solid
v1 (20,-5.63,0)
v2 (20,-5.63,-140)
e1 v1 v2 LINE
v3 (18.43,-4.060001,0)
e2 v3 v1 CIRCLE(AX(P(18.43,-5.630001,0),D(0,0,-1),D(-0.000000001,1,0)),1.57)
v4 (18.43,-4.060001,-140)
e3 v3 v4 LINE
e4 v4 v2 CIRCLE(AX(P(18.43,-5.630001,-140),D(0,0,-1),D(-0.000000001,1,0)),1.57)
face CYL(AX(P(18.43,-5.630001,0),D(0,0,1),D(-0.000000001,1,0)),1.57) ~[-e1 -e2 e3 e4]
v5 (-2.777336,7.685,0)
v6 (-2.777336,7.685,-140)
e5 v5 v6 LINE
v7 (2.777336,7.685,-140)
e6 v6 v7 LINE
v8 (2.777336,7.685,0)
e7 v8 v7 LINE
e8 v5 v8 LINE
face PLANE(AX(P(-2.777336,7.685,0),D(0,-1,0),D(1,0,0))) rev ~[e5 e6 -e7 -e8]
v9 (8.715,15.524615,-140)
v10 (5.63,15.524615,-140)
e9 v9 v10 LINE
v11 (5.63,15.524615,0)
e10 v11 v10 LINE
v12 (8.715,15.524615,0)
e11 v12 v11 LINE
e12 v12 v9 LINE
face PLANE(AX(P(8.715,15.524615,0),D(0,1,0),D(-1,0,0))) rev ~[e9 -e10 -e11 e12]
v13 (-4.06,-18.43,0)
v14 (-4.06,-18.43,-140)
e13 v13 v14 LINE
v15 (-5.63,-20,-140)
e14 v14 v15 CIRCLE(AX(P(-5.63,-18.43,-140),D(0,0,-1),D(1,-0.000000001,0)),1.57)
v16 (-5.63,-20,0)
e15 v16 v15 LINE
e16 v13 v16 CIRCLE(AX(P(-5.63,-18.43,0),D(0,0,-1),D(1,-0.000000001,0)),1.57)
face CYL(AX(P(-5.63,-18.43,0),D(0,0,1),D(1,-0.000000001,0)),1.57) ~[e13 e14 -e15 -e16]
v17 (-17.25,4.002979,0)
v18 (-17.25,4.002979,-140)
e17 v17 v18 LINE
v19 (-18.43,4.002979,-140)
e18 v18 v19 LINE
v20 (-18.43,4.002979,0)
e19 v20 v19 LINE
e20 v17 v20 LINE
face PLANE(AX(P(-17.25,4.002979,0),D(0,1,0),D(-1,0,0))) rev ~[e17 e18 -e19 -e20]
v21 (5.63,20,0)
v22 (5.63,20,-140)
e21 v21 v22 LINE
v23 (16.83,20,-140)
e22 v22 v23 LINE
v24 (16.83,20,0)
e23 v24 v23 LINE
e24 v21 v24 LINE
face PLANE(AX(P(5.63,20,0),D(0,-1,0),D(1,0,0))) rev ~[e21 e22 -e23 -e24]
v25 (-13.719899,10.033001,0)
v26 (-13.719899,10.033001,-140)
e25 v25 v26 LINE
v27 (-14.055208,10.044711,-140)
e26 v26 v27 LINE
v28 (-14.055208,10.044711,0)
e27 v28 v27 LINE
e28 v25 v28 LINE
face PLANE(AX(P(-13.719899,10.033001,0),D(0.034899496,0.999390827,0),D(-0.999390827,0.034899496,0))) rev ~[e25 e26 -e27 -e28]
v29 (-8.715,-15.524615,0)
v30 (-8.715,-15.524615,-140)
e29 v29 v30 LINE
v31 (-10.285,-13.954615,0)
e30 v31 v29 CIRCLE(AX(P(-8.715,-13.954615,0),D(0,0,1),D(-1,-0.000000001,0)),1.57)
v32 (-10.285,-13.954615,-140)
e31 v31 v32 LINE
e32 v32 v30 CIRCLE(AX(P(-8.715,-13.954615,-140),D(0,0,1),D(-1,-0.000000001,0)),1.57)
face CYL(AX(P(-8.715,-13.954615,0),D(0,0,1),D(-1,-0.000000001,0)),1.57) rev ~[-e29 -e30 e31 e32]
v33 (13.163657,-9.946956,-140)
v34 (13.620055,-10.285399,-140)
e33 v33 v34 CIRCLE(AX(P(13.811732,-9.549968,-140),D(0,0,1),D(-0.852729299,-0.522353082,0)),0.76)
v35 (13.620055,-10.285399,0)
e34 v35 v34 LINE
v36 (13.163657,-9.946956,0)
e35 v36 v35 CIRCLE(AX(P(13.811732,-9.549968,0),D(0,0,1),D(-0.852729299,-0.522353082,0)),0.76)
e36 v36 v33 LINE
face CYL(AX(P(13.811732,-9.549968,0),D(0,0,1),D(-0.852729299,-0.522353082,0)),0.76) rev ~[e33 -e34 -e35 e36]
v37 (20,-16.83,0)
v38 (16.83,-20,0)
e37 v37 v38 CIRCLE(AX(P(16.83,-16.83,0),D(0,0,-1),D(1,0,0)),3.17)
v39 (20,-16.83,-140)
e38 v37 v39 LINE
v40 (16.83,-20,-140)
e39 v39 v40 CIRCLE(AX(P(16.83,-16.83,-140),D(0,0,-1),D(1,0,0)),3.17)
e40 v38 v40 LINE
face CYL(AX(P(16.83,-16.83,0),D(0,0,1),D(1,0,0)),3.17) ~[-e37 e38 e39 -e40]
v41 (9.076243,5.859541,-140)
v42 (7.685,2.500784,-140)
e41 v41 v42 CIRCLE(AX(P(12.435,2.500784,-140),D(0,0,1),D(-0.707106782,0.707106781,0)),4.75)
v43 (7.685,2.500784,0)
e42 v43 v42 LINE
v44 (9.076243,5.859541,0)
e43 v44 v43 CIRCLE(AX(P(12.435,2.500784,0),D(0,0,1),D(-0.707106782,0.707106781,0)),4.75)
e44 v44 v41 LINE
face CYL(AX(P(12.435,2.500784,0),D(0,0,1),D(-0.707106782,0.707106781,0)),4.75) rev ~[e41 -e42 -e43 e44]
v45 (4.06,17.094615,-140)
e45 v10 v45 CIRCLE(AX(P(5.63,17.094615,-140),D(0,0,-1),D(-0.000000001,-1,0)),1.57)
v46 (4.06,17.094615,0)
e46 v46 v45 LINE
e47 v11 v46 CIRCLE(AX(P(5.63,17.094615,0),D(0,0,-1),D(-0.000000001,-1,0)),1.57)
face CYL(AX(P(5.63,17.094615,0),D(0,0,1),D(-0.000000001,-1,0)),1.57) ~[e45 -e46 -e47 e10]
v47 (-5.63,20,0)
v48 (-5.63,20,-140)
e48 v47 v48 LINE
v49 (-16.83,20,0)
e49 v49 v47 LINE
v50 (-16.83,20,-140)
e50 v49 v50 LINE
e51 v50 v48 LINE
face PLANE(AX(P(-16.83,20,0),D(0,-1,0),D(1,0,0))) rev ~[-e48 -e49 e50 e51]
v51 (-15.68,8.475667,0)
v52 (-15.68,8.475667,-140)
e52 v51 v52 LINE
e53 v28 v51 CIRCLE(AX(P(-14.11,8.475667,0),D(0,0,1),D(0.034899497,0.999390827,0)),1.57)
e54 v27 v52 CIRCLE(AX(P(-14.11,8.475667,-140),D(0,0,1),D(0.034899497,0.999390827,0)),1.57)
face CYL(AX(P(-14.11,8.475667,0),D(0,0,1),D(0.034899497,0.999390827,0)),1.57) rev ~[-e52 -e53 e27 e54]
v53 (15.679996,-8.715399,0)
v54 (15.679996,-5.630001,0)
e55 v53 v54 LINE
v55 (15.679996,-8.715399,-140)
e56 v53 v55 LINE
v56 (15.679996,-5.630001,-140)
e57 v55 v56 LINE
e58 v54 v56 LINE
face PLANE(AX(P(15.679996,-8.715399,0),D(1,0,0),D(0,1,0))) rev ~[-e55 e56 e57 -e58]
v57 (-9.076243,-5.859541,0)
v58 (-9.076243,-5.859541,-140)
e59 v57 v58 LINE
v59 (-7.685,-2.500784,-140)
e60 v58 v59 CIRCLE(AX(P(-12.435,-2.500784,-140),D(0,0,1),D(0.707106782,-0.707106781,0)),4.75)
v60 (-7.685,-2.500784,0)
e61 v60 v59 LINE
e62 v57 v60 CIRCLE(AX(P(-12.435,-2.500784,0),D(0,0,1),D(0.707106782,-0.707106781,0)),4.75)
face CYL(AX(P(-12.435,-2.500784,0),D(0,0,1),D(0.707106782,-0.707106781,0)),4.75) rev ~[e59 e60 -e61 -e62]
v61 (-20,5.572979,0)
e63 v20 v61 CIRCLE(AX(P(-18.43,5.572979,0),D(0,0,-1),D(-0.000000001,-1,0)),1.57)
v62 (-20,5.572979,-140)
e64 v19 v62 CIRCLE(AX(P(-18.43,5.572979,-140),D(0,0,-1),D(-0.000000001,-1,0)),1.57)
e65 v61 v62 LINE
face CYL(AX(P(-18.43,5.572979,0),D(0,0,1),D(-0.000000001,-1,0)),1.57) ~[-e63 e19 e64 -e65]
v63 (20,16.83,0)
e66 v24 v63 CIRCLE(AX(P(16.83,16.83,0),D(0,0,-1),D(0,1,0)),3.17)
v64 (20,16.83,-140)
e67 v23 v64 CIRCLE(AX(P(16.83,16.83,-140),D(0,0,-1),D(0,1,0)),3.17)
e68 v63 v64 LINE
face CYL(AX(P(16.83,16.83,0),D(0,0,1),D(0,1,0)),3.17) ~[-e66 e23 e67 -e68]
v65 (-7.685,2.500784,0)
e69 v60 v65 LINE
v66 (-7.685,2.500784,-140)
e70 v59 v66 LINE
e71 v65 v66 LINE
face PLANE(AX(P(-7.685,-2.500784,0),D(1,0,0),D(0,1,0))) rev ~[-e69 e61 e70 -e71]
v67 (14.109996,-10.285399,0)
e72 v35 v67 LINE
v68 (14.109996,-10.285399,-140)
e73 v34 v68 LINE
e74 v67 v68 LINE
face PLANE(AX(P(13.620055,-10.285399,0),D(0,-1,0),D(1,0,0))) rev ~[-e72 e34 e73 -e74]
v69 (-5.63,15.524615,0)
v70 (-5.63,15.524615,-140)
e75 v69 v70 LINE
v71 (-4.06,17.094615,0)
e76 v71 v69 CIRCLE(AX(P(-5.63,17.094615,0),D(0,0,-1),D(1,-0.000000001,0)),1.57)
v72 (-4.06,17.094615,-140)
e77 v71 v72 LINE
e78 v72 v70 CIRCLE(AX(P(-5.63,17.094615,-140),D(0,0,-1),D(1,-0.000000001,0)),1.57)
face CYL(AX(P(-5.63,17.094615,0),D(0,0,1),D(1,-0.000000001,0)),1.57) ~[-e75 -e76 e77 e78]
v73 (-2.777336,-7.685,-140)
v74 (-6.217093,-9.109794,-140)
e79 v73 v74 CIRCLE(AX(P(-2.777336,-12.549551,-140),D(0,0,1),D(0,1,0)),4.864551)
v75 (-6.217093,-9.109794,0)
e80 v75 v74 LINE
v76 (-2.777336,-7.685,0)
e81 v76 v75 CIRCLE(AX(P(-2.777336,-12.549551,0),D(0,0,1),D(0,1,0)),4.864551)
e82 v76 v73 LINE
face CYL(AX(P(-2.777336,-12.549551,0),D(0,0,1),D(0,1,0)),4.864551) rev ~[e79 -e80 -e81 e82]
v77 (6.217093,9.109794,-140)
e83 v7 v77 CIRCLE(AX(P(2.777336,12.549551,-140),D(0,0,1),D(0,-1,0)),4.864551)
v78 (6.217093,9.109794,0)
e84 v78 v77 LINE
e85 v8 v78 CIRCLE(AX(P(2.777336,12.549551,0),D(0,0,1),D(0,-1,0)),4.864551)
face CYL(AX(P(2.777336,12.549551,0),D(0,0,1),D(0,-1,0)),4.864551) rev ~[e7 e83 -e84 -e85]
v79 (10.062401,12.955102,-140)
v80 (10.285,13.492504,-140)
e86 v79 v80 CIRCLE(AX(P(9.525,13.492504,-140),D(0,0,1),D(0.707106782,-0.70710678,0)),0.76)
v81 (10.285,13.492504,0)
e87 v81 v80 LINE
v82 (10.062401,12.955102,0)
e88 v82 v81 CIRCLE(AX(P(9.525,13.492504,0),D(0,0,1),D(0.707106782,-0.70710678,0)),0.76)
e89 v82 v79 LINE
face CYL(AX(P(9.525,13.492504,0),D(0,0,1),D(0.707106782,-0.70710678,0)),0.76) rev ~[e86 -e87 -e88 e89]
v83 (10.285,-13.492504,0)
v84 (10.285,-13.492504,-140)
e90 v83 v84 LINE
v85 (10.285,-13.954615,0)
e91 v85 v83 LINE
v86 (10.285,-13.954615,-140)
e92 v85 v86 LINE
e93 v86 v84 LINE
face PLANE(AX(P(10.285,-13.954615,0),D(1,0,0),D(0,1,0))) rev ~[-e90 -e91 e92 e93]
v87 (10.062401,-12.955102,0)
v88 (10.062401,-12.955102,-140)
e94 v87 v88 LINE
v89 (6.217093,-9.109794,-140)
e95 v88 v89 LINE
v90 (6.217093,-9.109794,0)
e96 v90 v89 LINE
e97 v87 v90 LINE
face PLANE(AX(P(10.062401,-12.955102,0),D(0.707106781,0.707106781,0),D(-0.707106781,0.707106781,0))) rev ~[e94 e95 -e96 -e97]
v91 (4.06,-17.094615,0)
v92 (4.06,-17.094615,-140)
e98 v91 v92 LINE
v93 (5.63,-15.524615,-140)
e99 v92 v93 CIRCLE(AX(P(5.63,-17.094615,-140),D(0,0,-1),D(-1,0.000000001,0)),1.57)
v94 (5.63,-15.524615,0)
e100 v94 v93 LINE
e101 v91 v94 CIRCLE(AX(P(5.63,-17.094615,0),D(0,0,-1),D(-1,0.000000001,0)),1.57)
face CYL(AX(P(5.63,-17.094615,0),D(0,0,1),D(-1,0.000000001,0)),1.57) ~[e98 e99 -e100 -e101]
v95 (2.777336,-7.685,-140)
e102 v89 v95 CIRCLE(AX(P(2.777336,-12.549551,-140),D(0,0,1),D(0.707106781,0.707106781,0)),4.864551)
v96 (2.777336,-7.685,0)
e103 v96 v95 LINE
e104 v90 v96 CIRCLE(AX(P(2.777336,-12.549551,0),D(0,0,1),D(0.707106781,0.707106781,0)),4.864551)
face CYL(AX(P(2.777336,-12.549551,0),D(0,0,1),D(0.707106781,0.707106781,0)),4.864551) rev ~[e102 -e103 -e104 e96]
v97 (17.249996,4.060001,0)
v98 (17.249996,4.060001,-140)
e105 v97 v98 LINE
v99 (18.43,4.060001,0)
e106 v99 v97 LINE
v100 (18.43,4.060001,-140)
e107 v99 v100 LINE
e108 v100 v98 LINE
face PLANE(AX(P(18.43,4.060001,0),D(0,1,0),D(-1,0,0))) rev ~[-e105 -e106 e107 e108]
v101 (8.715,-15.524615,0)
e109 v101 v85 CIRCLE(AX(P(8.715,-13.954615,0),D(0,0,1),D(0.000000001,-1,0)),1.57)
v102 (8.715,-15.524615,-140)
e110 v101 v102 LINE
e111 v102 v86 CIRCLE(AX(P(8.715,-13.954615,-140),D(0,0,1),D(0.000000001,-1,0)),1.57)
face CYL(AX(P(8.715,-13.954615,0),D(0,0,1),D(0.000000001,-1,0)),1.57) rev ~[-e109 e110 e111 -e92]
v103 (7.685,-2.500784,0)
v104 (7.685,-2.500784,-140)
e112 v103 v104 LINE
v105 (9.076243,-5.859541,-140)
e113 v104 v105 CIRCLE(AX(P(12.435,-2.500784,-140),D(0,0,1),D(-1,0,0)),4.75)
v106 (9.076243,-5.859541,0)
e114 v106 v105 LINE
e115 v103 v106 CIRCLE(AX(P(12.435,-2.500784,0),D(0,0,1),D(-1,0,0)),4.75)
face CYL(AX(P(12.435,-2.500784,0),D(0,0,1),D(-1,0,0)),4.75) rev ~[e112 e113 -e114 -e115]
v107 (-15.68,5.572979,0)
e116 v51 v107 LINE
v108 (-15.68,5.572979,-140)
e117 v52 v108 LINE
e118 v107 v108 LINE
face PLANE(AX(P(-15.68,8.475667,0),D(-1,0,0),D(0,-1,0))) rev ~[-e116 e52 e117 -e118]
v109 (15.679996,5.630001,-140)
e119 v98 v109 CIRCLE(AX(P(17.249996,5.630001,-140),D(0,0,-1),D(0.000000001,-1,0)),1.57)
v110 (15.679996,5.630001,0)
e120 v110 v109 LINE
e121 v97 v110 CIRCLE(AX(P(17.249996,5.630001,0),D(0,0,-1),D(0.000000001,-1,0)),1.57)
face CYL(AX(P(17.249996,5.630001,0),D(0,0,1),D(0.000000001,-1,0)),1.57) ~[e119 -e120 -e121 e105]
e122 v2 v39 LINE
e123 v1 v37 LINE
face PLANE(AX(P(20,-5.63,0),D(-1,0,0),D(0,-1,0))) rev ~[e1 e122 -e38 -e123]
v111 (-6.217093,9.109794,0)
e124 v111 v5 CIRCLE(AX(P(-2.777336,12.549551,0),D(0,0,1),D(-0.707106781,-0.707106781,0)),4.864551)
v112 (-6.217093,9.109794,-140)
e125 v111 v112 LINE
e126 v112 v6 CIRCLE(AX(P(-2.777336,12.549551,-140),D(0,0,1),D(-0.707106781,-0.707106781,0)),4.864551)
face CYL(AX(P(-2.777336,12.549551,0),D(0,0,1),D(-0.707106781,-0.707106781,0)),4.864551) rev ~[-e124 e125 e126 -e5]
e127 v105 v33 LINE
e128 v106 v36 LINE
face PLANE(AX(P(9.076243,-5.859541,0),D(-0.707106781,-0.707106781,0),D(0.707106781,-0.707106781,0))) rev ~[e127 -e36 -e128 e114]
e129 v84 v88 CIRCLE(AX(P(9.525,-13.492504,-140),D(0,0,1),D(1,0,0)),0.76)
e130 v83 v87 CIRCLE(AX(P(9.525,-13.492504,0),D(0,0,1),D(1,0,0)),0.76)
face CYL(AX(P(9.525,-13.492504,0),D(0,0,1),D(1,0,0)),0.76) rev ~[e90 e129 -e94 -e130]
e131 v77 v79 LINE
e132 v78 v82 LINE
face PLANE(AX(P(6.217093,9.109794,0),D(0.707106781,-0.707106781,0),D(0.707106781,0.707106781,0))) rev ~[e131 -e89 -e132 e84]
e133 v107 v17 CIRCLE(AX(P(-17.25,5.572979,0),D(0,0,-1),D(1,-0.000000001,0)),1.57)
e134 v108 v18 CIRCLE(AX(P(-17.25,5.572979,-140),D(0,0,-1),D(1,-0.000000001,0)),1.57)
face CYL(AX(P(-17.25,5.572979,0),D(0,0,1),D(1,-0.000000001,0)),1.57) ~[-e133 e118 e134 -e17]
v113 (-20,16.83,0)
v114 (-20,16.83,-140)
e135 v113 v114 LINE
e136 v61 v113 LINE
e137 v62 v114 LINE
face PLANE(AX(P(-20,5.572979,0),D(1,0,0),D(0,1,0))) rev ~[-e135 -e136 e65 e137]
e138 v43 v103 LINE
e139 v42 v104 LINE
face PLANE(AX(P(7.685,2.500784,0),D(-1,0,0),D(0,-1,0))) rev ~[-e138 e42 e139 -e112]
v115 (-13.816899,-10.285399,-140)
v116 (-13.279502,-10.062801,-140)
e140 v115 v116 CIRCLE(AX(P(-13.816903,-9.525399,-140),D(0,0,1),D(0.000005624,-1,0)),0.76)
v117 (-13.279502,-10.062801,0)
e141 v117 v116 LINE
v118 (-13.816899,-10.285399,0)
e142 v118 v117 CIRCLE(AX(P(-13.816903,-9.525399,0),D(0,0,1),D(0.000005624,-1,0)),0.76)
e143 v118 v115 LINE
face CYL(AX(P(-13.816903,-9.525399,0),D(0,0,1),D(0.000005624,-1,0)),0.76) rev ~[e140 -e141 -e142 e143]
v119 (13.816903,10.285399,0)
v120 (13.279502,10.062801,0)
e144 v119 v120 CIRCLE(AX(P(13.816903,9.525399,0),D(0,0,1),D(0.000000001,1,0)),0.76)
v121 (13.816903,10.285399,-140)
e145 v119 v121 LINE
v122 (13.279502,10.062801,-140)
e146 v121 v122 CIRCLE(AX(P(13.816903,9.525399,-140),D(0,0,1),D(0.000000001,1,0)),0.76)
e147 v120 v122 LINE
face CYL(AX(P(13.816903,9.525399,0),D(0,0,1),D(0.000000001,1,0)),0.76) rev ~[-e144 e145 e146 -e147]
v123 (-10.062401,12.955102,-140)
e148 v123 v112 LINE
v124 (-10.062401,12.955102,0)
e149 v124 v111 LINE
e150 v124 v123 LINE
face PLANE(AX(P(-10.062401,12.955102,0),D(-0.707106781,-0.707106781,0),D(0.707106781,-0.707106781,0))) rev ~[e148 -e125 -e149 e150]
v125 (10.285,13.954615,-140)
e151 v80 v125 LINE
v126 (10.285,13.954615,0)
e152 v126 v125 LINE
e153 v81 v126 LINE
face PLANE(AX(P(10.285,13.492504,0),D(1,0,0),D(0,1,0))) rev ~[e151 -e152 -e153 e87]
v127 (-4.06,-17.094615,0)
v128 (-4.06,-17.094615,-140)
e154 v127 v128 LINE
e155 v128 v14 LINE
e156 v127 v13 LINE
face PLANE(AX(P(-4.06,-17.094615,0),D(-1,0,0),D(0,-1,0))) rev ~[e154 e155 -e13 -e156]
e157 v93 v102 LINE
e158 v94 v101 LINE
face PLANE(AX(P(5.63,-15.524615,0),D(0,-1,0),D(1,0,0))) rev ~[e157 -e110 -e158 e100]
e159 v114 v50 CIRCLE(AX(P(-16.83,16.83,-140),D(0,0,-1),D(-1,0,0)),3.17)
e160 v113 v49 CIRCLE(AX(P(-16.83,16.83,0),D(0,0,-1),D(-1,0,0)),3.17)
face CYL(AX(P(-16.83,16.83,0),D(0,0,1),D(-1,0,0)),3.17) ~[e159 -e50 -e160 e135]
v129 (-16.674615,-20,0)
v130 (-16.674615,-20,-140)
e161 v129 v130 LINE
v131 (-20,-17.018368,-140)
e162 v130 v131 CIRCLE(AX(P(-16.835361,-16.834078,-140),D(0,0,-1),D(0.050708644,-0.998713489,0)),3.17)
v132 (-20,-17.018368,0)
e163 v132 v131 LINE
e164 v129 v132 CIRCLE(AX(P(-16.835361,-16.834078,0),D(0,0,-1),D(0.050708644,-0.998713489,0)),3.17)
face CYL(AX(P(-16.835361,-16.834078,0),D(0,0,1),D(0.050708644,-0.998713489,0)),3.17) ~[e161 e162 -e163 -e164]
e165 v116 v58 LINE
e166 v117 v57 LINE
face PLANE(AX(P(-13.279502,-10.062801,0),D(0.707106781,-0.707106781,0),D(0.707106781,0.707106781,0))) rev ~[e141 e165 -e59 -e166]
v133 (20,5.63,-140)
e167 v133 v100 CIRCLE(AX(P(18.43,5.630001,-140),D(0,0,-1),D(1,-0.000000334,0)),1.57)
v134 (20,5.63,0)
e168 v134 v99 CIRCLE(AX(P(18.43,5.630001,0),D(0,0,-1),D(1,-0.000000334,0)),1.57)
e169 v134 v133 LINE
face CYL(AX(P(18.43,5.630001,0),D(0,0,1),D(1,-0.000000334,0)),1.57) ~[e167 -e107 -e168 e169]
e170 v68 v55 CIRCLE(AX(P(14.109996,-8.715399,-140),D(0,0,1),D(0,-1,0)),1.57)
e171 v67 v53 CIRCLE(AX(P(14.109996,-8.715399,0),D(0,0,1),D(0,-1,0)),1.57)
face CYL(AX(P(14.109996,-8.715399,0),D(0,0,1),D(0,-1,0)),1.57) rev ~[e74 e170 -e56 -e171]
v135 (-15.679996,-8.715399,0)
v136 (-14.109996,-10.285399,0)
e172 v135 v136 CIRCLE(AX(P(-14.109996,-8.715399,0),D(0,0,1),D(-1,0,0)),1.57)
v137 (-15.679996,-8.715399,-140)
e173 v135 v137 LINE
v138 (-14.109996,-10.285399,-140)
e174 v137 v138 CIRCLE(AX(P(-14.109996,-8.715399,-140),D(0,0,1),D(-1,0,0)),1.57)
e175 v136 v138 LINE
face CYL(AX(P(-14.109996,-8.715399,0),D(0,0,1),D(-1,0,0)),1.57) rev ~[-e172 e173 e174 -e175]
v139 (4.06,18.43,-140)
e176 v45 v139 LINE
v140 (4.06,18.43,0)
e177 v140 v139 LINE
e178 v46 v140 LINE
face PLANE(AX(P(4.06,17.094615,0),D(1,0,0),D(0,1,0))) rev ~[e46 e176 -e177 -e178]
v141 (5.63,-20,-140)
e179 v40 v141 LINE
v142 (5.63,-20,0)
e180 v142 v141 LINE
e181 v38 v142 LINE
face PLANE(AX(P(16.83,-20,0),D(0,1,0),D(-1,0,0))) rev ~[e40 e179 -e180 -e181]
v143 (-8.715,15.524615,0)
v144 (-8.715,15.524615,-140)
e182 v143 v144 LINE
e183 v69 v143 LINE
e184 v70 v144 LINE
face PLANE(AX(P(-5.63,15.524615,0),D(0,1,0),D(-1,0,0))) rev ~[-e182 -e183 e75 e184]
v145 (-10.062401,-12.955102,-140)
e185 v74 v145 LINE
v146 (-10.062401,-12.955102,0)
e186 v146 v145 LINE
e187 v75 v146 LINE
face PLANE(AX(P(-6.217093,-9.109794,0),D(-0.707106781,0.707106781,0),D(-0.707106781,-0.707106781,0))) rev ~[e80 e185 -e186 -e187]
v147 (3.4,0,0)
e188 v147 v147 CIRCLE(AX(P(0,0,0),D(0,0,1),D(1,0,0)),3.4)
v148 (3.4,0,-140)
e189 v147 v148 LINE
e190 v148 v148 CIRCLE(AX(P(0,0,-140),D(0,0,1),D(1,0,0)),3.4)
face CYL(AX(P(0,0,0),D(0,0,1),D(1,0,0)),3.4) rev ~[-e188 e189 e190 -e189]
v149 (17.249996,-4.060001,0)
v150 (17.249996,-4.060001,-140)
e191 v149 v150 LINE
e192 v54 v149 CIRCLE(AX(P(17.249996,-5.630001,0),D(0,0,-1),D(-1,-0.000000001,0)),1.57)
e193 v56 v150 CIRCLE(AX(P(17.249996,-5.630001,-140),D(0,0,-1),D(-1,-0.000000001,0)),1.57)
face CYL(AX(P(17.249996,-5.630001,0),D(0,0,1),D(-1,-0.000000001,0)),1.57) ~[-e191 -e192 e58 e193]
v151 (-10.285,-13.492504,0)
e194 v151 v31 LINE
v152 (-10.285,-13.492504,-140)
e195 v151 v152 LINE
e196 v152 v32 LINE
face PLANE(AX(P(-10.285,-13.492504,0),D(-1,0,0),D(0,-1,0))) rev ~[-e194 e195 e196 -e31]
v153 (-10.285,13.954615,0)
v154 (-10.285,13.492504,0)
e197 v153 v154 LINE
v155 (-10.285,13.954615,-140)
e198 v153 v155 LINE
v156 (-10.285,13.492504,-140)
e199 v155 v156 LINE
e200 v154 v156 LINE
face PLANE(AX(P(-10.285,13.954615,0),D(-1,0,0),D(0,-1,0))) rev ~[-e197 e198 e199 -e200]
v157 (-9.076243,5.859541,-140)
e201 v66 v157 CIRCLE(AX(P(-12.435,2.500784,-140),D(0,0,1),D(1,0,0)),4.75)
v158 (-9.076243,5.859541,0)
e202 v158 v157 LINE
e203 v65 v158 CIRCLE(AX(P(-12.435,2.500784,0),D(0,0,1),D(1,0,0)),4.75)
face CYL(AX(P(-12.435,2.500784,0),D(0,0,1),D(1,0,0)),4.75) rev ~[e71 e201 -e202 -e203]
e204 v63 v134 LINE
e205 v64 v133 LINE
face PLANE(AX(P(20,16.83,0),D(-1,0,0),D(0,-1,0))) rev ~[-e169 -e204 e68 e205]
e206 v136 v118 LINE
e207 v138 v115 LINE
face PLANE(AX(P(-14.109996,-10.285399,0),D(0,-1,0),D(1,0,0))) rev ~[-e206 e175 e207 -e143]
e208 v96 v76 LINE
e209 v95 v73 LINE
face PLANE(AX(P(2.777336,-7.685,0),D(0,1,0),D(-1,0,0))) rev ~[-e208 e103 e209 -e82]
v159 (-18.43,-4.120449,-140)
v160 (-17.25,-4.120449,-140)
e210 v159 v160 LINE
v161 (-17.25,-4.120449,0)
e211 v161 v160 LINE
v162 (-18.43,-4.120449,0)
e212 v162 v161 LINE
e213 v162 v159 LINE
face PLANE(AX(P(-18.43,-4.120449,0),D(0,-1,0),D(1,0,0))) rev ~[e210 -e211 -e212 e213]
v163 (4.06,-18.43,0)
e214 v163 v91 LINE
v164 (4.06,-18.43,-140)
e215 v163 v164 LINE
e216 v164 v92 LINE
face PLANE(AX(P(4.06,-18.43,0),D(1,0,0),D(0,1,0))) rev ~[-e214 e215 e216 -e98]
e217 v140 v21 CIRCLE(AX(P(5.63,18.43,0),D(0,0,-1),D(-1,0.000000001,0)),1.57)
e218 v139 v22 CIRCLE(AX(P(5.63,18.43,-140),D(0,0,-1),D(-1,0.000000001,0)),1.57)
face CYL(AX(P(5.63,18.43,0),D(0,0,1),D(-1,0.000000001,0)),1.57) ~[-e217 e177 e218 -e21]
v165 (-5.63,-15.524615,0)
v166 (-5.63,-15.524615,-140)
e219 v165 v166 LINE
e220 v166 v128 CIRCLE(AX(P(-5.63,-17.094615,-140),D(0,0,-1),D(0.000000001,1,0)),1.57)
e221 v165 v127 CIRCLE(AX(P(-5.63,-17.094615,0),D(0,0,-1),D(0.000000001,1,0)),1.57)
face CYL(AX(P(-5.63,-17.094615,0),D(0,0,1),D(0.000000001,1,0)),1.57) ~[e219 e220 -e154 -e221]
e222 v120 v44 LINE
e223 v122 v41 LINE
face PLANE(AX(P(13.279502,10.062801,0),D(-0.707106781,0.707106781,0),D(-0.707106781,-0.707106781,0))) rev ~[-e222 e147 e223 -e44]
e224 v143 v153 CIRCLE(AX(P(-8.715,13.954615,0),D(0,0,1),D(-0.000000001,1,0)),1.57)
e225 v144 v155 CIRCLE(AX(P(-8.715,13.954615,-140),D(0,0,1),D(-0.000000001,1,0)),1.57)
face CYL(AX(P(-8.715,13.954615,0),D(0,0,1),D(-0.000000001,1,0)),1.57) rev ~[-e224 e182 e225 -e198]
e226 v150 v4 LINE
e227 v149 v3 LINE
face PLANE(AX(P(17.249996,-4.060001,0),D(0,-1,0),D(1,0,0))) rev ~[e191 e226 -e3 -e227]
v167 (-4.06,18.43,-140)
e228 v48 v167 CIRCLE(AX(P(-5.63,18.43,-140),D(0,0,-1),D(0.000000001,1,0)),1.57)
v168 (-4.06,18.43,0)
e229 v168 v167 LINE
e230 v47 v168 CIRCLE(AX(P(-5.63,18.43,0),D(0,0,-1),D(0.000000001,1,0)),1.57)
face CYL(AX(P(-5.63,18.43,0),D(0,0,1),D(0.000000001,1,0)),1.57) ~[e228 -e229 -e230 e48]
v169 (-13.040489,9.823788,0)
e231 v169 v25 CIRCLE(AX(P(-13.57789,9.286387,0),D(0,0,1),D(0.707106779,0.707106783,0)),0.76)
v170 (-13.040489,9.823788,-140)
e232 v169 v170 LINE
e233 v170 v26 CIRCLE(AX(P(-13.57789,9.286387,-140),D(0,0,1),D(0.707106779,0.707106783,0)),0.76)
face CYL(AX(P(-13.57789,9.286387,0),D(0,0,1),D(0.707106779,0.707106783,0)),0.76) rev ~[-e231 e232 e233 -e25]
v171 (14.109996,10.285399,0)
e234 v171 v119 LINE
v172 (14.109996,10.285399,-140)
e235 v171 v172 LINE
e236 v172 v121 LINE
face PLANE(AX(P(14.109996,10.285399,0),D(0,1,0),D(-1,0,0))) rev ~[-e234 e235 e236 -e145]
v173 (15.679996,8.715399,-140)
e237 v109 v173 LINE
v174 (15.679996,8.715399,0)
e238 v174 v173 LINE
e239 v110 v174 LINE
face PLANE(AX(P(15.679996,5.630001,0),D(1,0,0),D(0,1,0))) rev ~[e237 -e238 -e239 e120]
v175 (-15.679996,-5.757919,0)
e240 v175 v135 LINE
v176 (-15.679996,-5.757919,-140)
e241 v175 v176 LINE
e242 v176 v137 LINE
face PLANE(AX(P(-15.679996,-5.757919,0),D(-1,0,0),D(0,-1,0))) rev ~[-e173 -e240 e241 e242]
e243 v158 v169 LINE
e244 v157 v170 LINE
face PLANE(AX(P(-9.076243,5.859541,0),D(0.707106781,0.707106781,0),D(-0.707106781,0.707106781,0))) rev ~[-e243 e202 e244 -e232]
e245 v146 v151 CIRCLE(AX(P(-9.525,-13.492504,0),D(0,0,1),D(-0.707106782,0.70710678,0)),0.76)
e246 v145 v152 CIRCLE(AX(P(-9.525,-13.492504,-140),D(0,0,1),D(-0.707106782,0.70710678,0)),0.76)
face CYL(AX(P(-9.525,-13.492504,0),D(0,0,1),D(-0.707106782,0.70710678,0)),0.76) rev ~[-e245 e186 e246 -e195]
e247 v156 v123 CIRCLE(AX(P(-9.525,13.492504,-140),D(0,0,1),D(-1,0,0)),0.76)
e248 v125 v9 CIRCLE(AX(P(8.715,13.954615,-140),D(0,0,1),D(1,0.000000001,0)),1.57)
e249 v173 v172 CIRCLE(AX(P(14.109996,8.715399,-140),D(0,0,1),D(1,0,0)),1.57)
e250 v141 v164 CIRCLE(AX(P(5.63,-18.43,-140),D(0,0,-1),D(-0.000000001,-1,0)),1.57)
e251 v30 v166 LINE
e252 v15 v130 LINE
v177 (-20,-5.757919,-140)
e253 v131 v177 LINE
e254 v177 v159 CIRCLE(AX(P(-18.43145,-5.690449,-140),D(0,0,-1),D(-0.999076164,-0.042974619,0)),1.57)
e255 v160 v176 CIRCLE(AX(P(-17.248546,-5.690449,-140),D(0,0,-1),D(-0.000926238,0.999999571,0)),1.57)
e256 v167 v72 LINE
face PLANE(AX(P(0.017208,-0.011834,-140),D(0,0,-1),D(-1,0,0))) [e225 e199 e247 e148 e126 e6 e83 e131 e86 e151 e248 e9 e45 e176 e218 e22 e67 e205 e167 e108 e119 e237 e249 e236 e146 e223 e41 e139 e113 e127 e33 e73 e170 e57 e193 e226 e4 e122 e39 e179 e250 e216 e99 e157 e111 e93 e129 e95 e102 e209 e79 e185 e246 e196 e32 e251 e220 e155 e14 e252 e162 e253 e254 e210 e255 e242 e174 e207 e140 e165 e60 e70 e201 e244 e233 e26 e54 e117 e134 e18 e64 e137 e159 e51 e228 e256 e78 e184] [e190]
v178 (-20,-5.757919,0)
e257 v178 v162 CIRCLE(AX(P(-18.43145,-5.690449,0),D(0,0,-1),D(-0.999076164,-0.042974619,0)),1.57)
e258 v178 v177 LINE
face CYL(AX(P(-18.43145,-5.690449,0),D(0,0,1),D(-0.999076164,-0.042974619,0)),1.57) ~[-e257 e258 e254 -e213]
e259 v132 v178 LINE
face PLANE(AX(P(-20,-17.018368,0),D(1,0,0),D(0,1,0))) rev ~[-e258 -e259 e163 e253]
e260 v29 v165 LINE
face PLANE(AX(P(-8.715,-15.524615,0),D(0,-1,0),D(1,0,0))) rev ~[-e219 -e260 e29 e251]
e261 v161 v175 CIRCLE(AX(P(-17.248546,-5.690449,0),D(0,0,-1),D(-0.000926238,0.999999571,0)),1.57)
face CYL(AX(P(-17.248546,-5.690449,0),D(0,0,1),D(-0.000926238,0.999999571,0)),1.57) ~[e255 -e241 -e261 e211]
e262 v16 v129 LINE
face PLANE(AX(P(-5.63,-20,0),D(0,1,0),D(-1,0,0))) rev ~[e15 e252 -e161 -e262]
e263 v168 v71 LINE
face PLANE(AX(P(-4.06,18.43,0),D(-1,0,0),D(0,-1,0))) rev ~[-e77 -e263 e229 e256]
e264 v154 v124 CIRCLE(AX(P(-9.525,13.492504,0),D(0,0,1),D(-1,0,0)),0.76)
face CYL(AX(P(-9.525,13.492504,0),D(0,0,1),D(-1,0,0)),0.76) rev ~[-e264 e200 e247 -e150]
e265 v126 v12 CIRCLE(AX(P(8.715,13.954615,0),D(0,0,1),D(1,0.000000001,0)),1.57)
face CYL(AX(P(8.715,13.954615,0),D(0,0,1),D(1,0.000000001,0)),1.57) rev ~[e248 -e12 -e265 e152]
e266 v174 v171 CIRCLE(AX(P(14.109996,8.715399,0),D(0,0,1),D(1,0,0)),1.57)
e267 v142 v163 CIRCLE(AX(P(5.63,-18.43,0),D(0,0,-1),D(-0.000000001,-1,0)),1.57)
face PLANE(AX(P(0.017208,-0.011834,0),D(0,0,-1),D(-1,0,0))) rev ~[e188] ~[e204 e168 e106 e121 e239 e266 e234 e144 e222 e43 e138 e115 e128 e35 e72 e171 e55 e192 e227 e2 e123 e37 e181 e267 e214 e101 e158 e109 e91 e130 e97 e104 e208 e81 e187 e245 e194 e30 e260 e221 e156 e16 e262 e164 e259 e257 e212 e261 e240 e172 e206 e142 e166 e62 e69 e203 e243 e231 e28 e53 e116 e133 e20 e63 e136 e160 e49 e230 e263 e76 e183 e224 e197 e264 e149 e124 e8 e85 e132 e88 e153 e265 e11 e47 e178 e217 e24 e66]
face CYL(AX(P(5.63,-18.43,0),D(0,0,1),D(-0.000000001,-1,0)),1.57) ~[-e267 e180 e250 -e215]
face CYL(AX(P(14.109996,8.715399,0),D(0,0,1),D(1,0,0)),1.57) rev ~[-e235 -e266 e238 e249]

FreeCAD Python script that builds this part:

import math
import FreeCAD as App
import Part
import Sketcher
Q = App.Units.Quantity

doc = App.newDocument("Part")
params = doc.addObject("Spreadsheet::Sheet", "Params")
for row, (alias, value) in enumerate([
    ("sketch1_diameter", "6.8 mm"),
    ("sketch1_radius", "1.57 mm"),
    ("sketch1_radius2", "0.76 mm"),
    ("sketch1_radius3", "3.17 mm"),
    ("sketch1_radius4", "4.75 mm"),
    ("pad1_length", "140 mm"),
], start=1):
    params.set(f"A{row}", alias)
    params.set(f"B{row}", "=" + value)
    params.setAlias(f"B{row}", alias)

body = doc.addObject("PartDesign::Body", "Body")

# Sketch on XY plane
sketch1 = body.newObject("Sketcher::SketchObject", "Sketch")
sketch1.AttachmentSupport = (doc.getObject("XY_Plane"), [""])
sketch1.MapMode = "FlatFace"
sketch1.addGeometry([
    Part.LineSegment(App.Vector(-5.63, -15.52, 0), App.Vector(-8.71, -15.52, 0)),  # 0
    Part.ArcOfCircle(Part.Circle(App.Vector(-8.71, -13.95, 0), App.Vector(0, 0, 1), 1.57), math.radians(-180), math.radians(-90)),  # 1
    Part.LineSegment(App.Vector(-10.29, -13.95, 0), App.Vector(-10.29, -13.49, 0)),  # 2
    Part.ArcOfCircle(Part.Circle(App.Vector(-9.52, -13.49, 0), App.Vector(0, 0, 1), 0.76), math.radians(135), math.radians(180)),  # 3
    Part.LineSegment(App.Vector(-10.06, -12.96, 0), App.Vector(-6.22, -9.11, 0)),  # 4
    Part.ArcOfCircle(Part.Circle(App.Vector(-2.78, -12.55, 0), App.Vector(0, 0, 1), 4.86), math.radians(90), math.radians(135)),  # 5
    Part.LineSegment(App.Vector(-2.78, -7.68, 0), App.Vector(2.78, -7.68, 0)),  # 6
    Part.ArcOfCircle(Part.Circle(App.Vector(2.78, -12.55, 0), App.Vector(0, 0, 1), 4.86), math.radians(45), math.radians(90)),  # 7
    Part.LineSegment(App.Vector(6.22, -9.11, 0), App.Vector(10.06, -12.96, 0)),  # 8
    Part.ArcOfCircle(Part.Circle(App.Vector(9.52, -13.49, 0), App.Vector(0, 0, 1), 0.76), math.radians(0), math.radians(45)),  # 9
    Part.LineSegment(App.Vector(10.29, -13.49, 0), App.Vector(10.29, -13.95, 0)),  # 10
    Part.ArcOfCircle(Part.Circle(App.Vector(8.71, -13.95, 0), App.Vector(0, 0, 1), 1.57), math.radians(-90), math.radians(0)),  # 11
    Part.LineSegment(App.Vector(8.71, -15.52, 0), App.Vector(5.63, -15.52, 0)),  # 12
    Part.ArcOfCircle(Part.Circle(App.Vector(5.63, -17.09, 0), App.Vector(0, 0, 1), 1.57), math.radians(90), math.radians(180)),  # 13
    Part.LineSegment(App.Vector(4.06, -17.09, 0), App.Vector(4.06, -18.43, 0)),  # 14
    Part.ArcOfCircle(Part.Circle(App.Vector(5.63, -18.43, 0), App.Vector(0, 0, 1), 1.57), math.radians(-180), math.radians(-90)),  # 15
    Part.LineSegment(App.Vector(5.63, -20, 0), App.Vector(16.83, -20, 0)),  # 16
    Part.ArcOfCircle(Part.Circle(App.Vector(16.83, -16.83, 0), App.Vector(0, 0, 1), 3.17), math.radians(-90), math.radians(0)),  # 17
    Part.LineSegment(App.Vector(20, -16.83, 0), App.Vector(20, -5.63, 0)),  # 18
    Part.ArcOfCircle(Part.Circle(App.Vector(18.43, -5.63, 0), App.Vector(0, 0, 1), 1.57), math.radians(0), math.radians(90)),  # 19
    Part.LineSegment(App.Vector(18.43, -4.06, 0), App.Vector(17.25, -4.06, 0)),  # 20
    Part.ArcOfCircle(Part.Circle(App.Vector(17.25, -5.63, 0), App.Vector(0, 0, 1), 1.57), math.radians(90), math.radians(180)),  # 21
    Part.LineSegment(App.Vector(15.68, -5.63, 0), App.Vector(15.68, -8.72, 0)),  # 22
    Part.ArcOfCircle(Part.Circle(App.Vector(14.11, -8.72, 0), App.Vector(0, 0, 1), 1.57), math.radians(-90), math.radians(0)),  # 23
    Part.LineSegment(App.Vector(14.11, -10.29, 0), App.Vector(13.62, -10.29, 0)),  # 24
    Part.ArcOfCircle(Part.Circle(App.Vector(13.81, -9.55, 0), App.Vector(0, 0, 1), 0.76), math.radians(-149), math.radians(-105)),  # 25
    Part.LineSegment(App.Vector(13.16, -9.95, 0), App.Vector(9.08, -5.86, 0)),  # 26
    Part.ArcOfCircle(Part.Circle(App.Vector(12.44, -2.5, 0), App.Vector(0, 0, 1), 4.75), math.radians(-180), math.radians(-135)),  # 27
    Part.LineSegment(App.Vector(7.68, -2.5, 0), App.Vector(7.68, 2.5, 0)),  # 28
    Part.ArcOfCircle(Part.Circle(App.Vector(12.44, 2.5, 0), App.Vector(0, 0, 1), 4.75), math.radians(135), math.radians(180)),  # 29
    Part.LineSegment(App.Vector(9.08, 5.86, 0), App.Vector(13.28, 10.06, 0)),  # 30
    Part.ArcOfCircle(Part.Circle(App.Vector(13.82, 9.53, 0), App.Vector(0, 0, 1), 0.76), math.radians(90), math.radians(135)),  # 31
    Part.LineSegment(App.Vector(13.82, 10.29, 0), App.Vector(14.11, 10.29, 0)),  # 32
    Part.ArcOfCircle(Part.Circle(App.Vector(14.11, 8.72, 0), App.Vector(0, 0, 1), 1.57), math.radians(0), math.radians(90)),  # 33
    Part.LineSegment(App.Vector(15.68, 8.72, 0), App.Vector(15.68, 5.63, 0)),  # 34
    Part.ArcOfCircle(Part.Circle(App.Vector(17.25, 5.63, 0), App.Vector(0, 0, 1), 1.57), math.radians(180), math.radians(270)),  # 35
    Part.LineSegment(App.Vector(17.25, 4.06, 0), App.Vector(18.43, 4.06, 0)),  # 36
    Part.ArcOfCircle(Part.Circle(App.Vector(18.43, 5.63, 0), App.Vector(0, 0, 1), 1.57), math.radians(-90), math.radians(0)),  # 37
    Part.LineSegment(App.Vector(20, 5.63, 0), App.Vector(20, 16.83, 0)),  # 38
    Part.ArcOfCircle(Part.Circle(App.Vector(16.83, 16.83, 0), App.Vector(0, 0, 1), 3.17), math.radians(0), math.radians(90)),  # 39
    Part.LineSegment(App.Vector(16.83, 20, 0), App.Vector(5.63, 20, 0)),  # 40
    Part.ArcOfCircle(Part.Circle(App.Vector(5.63, 18.43, 0), App.Vector(0, 0, 1), 1.57), math.radians(90), math.radians(180)),  # 41
    Part.LineSegment(App.Vector(4.06, 18.43, 0), App.Vector(4.06, 17.09, 0)),  # 42
    Part.ArcOfCircle(Part.Circle(App.Vector(5.63, 17.09, 0), App.Vector(0, 0, 1), 1.57), math.radians(-180), math.radians(-90)),  # 43
    Part.LineSegment(App.Vector(5.63, 15.52, 0), App.Vector(8.71, 15.52, 0)),  # 44
    Part.ArcOfCircle(Part.Circle(App.Vector(8.71, 13.95, 0), App.Vector(0, 0, 1), 1.57), math.radians(0), math.radians(90)),  # 45
    Part.LineSegment(App.Vector(10.29, 13.95, 0), App.Vector(10.29, 13.49, 0)),  # 46
    Part.ArcOfCircle(Part.Circle(App.Vector(9.52, 13.49, 0), App.Vector(0, 0, 1), 0.76), math.radians(-45), math.radians(0)),  # 47
    Part.LineSegment(App.Vector(10.06, 12.96, 0), App.Vector(6.22, 9.11, 0)),  # 48
    Part.ArcOfCircle(Part.Circle(App.Vector(2.78, 12.55, 0), App.Vector(0, 0, 1), 4.86), math.radians(-90), math.radians(-45)),  # 49
    Part.LineSegment(App.Vector(2.78, 7.68, 0), App.Vector(-2.78, 7.68, 0)),  # 50
    Part.ArcOfCircle(Part.Circle(App.Vector(-2.78, 12.55, 0), App.Vector(0, 0, 1), 4.86), math.radians(-135), math.radians(-90)),  # 51
    Part.LineSegment(App.Vector(-6.22, 9.11, 0), App.Vector(-10.06, 12.96, 0)),  # 52
    Part.ArcOfCircle(Part.Circle(App.Vector(-9.52, 13.49, 0), App.Vector(0, 0, 1), 0.76), math.radians(180), math.radians(225)),  # 53
    Part.LineSegment(App.Vector(-10.29, 13.49, 0), App.Vector(-10.29, 13.95, 0)),  # 54
    Part.ArcOfCircle(Part.Circle(App.Vector(-8.71, 13.95, 0), App.Vector(0, 0, 1), 1.57), math.radians(90), math.radians(180)),  # 55
    Part.LineSegment(App.Vector(-8.71, 15.52, 0), App.Vector(-5.63, 15.52, 0)),  # 56
    Part.ArcOfCircle(Part.Circle(App.Vector(-5.63, 17.09, 0), App.Vector(0, 0, 1), 1.57), math.radians(-90), math.radians(0)),  # 57
    Part.LineSegment(App.Vector(-4.06, 17.09, 0), App.Vector(-4.06, 18.43, 0)),  # 58
    Part.ArcOfCircle(Part.Circle(App.Vector(-5.63, 18.43, 0), App.Vector(0, 0, 1), 1.57), math.radians(0), math.radians(90)),  # 59
    Part.LineSegment(App.Vector(-5.63, 20, 0), App.Vector(-16.83, 20, 0)),  # 60
    Part.ArcOfCircle(Part.Circle(App.Vector(-16.83, 16.83, 0), App.Vector(0, 0, 1), 3.17), math.radians(90), math.radians(180)),  # 61
    Part.LineSegment(App.Vector(-20, 16.83, 0), App.Vector(-20, 5.57, 0)),  # 62
    Part.ArcOfCircle(Part.Circle(App.Vector(-18.43, 5.57, 0), App.Vector(0, 0, 1), 1.57), math.radians(-180), math.radians(-90)),  # 63
    Part.LineSegment(App.Vector(-18.43, 4, 0), App.Vector(-17.25, 4, 0)),  # 64
    Part.ArcOfCircle(Part.Circle(App.Vector(-17.25, 5.57, 0), App.Vector(0, 0, 1), 1.57), math.radians(-90), math.radians(0)),  # 65
    Part.LineSegment(App.Vector(-15.68, 5.57, 0), App.Vector(-15.68, 8.48, 0)),  # 66
    Part.ArcOfCircle(Part.Circle(App.Vector(-14.11, 8.48, 0), App.Vector(0, 0, 1), 1.57), math.radians(88), math.radians(180)),  # 67
    Part.LineSegment(App.Vector(-14.06, 10.04, 0), App.Vector(-13.72, 10.03, 0)),  # 68
    Part.ArcOfCircle(Part.Circle(App.Vector(-13.58, 9.29, 0), App.Vector(0, 0, 1), 0.76), math.radians(45), math.radians(101)),  # 69
    Part.LineSegment(App.Vector(-13.04, 9.82, 0), App.Vector(-9.08, 5.86, 0)),  # 70
    Part.ArcOfCircle(Part.Circle(App.Vector(-12.44, 2.5, 0), App.Vector(0, 0, 1), 4.75), math.radians(0), math.radians(45)),  # 71
    Part.LineSegment(App.Vector(-7.68, 2.5, 0), App.Vector(-7.68, -2.5, 0)),  # 72
    Part.ArcOfCircle(Part.Circle(App.Vector(-12.44, -2.5, 0), App.Vector(0, 0, 1), 4.75), math.radians(-45), math.radians(0)),  # 73
    Part.LineSegment(App.Vector(-9.08, -5.86, 0), App.Vector(-13.28, -10.06, 0)),  # 74
    Part.ArcOfCircle(Part.Circle(App.Vector(-13.82, -9.53, 0), App.Vector(0, 0, 1), 0.76), math.radians(-90), math.radians(-45)),  # 75
    Part.LineSegment(App.Vector(-13.82, -10.29, 0), App.Vector(-14.11, -10.29, 0)),  # 76
    Part.ArcOfCircle(Part.Circle(App.Vector(-14.11, -8.72, 0), App.Vector(0, 0, 1), 1.57), math.radians(180), math.radians(270)),  # 77
    Part.LineSegment(App.Vector(-15.68, -8.72, 0), App.Vector(-15.68, -5.76, 0)),  # 78
    Part.ArcOfCircle(Part.Circle(App.Vector(-17.25, -5.69, 0), App.Vector(0, 0, 1), 1.57), math.radians(-2), math.radians(90)),  # 79
    Part.LineSegment(App.Vector(-17.25, -4.12, 0), App.Vector(-18.43, -4.12, 0)),  # 80
    Part.ArcOfCircle(Part.Circle(App.Vector(-18.43, -5.69, 0), App.Vector(0, 0, 1), 1.57), math.radians(90), math.radians(182)),  # 81
    Part.LineSegment(App.Vector(-20, -5.76, 0), App.Vector(-20, -17.02, 0)),  # 82
    Part.ArcOfCircle(Part.Circle(App.Vector(-16.84, -16.83, 0), App.Vector(0, 0, 1), 3.17), math.radians(-177), math.radians(-87)),  # 83
    Part.LineSegment(App.Vector(-16.67, -20, 0), App.Vector(-5.63, -20, 0)),  # 84
    Part.ArcOfCircle(Part.Circle(App.Vector(-5.63, -18.43, 0), App.Vector(0, 0, 1), 1.57), math.radians(-90), math.radians(0)),  # 85
    Part.LineSegment(App.Vector(-4.06, -18.43, 0), App.Vector(-4.06, -17.09, 0)),  # 86
    Part.ArcOfCircle(Part.Circle(App.Vector(-5.63, -17.09, 0), App.Vector(0, 0, 1), 1.57), math.radians(0), math.radians(90)),  # 87
    Part.Circle(App.Vector(0, 0, 0), App.Vector(0, 0, 1), 3.4),  # 88
], False)
sketch1.addConstraint([
    Sketcher.Constraint("Tangent", 0, 2, 1, 2),
    Sketcher.Constraint("Tangent", 1, 1, 2, 1),
    Sketcher.Constraint("Tangent", 2, 2, 3, 2),
    Sketcher.Constraint("Tangent", 3, 1, 4, 1),
    Sketcher.Constraint("Tangent", 4, 2, 5, 2),
    Sketcher.Constraint("Tangent", 5, 1, 6, 1),
    Sketcher.Constraint("Tangent", 6, 2, 7, 2),
    Sketcher.Constraint("Tangent", 7, 1, 8, 1),
    Sketcher.Constraint("Tangent", 8, 2, 9, 2),
    Sketcher.Constraint("Tangent", 9, 1, 10, 1),
    Sketcher.Constraint("Tangent", 10, 2, 11, 2),
    Sketcher.Constraint("Tangent", 11, 1, 12, 1),
    Sketcher.Constraint("Tangent", 12, 2, 13, 1),
    Sketcher.Constraint("Tangent", 13, 2, 14, 1),
    Sketcher.Constraint("Tangent", 14, 2, 15, 1),
    Sketcher.Constraint("Tangent", 15, 2, 16, 1),
    Sketcher.Constraint("Tangent", 16, 2, 17, 1),
    Sketcher.Constraint("Tangent", 17, 2, 18, 1),
    Sketcher.Constraint("Tangent", 18, 2, 19, 1),
    Sketcher.Constraint("Tangent", 19, 2, 20, 1),
    Sketcher.Constraint("Tangent", 20, 2, 21, 1),
    Sketcher.Constraint("Tangent", 21, 2, 22, 1),
    Sketcher.Constraint("Tangent", 22, 2, 23, 2),
    Sketcher.Constraint("Tangent", 23, 1, 24, 1),
    Sketcher.Constraint("Coincident", 24, 2, 25, 2),
    Sketcher.Constraint("Coincident", 25, 1, 26, 1),
    Sketcher.Constraint("Tangent", 26, 2, 27, 2),
    Sketcher.Constraint("Tangent", 27, 1, 28, 1),
    Sketcher.Constraint("Tangent", 28, 2, 29, 2),
    Sketcher.Constraint("Tangent", 29, 1, 30, 1),
    Sketcher.Constraint("Tangent", 30, 2, 31, 2),
    Sketcher.Constraint("Tangent", 31, 1, 32, 1),
    Sketcher.Constraint("Tangent", 32, 2, 33, 2),
    Sketcher.Constraint("Tangent", 33, 1, 34, 1),
    Sketcher.Constraint("Tangent", 34, 2, 35, 1),
    Sketcher.Constraint("Tangent", 35, 2, 36, 1),
    Sketcher.Constraint("Tangent", 36, 2, 37, 1),
    Sketcher.Constraint("Tangent", 37, 2, 38, 1),
    Sketcher.Constraint("Tangent", 38, 2, 39, 1),
    Sketcher.Constraint("Tangent", 39, 2, 40, 1),
    Sketcher.Constraint("Tangent", 40, 2, 41, 1),
    Sketcher.Constraint("Tangent", 41, 2, 42, 1),
    Sketcher.Constraint("Tangent", 42, 2, 43, 1),
    Sketcher.Constraint("Tangent", 43, 2, 44, 1),
    Sketcher.Constraint("Tangent", 44, 2, 45, 2),
    Sketcher.Constraint("Tangent", 45, 1, 46, 1),
    Sketcher.Constraint("Tangent", 46, 2, 47, 2),
    Sketcher.Constraint("Tangent", 47, 1, 48, 1),
    Sketcher.Constraint("Tangent", 48, 2, 49, 2),
    Sketcher.Constraint("Tangent", 49, 1, 50, 1),
    Sketcher.Constraint("Tangent", 50, 2, 51, 2),
    Sketcher.Constraint("Tangent", 51, 1, 52, 1),
    Sketcher.Constraint("Tangent", 52, 2, 53, 2),
    Sketcher.Constraint("Tangent", 53, 1, 54, 1),
    Sketcher.Constraint("Tangent", 54, 2, 55, 2),
    Sketcher.Constraint("Tangent", 55, 1, 56, 1),
    Sketcher.Constraint("Tangent", 56, 2, 57, 1),
    Sketcher.Constraint("Tangent", 57, 2, 58, 1),
    Sketcher.Constraint("Tangent", 58, 2, 59, 1),
    Sketcher.Constraint("Tangent", 59, 2, 60, 1),
    Sketcher.Constraint("Tangent", 60, 2, 61, 1),
    Sketcher.Constraint("Tangent", 61, 2, 62, 1),
    Sketcher.Constraint("Tangent", 62, 2, 63, 1),
    Sketcher.Constraint("Tangent", 63, 2, 64, 1),
    Sketcher.Constraint("Tangent", 64, 2, 65, 1),
    Sketcher.Constraint("Tangent", 65, 2, 66, 1),
    Sketcher.Constraint("Tangent", 66, 2, 67, 2),
    Sketcher.Constraint("Tangent", 67, 1, 68, 1),
    Sketcher.Constraint("Coincident", 68, 2, 69, 2),
    Sketcher.Constraint("Tangent", 69, 1, 70, 1),
    Sketcher.Constraint("Tangent", 70, 2, 71, 2),
    Sketcher.Constraint("Tangent", 71, 1, 72, 1),
    Sketcher.Constraint("Tangent", 72, 2, 73, 2),
    Sketcher.Constraint("Tangent", 73, 1, 74, 1),
    Sketcher.Constraint("Tangent", 74, 2, 75, 2),
    Sketcher.Constraint("Coincident", 75, 1, 76, 1),
    Sketcher.Constraint("Tangent", 76, 2, 77, 2),
    Sketcher.Constraint("Tangent", 77, 1, 78, 1),
    Sketcher.Constraint("Coincident", 78, 2, 79, 1),
    Sketcher.Constraint("Coincident", 79, 2, 80, 1),
    Sketcher.Constraint("Coincident", 80, 2, 81, 1),
    Sketcher.Constraint("Coincident", 81, 2, 82, 1),
    Sketcher.Constraint("Coincident", 82, 2, 83, 1),
    Sketcher.Constraint("Coincident", 83, 2, 84, 1),
    Sketcher.Constraint("Tangent", 84, 2, 85, 1),
    Sketcher.Constraint("Tangent", 85, 2, 86, 1),
    Sketcher.Constraint("Tangent", 86, 2, 87, 1),
    Sketcher.Constraint("Tangent", 87, 2, 0, 1),
    Sketcher.Constraint("Horizontal", 0),
    Sketcher.Constraint("Vertical", 2),
    Sketcher.Constraint("Horizontal", 6),
    Sketcher.Constraint("Vertical", 10),
    Sketcher.Constraint("Horizontal", 12),
    Sketcher.Constraint("Vertical", 14),
    Sketcher.Constraint("Horizontal", 16),
    Sketcher.Constraint("Vertical", 18),
    Sketcher.Constraint("Horizontal", 20),
    Sketcher.Constraint("Vertical", 22),
    Sketcher.Constraint("Horizontal", 24),
    Sketcher.Constraint("Vertical", 28),
    Sketcher.Constraint("Horizontal", 32),
    Sketcher.Constraint("Vertical", 34),
    Sketcher.Constraint("Horizontal", 36),
    Sketcher.Constraint("Vertical", 38),
    Sketcher.Constraint("Horizontal", 40),
    Sketcher.Constraint("Vertical", 42),
    Sketcher.Constraint("Horizontal", 44),
    Sketcher.Constraint("Vertical", 46),
    Sketcher.Constraint("Horizontal", 50),
    Sketcher.Constraint("Vertical", 54),
    Sketcher.Constraint("Horizontal", 56),
    Sketcher.Constraint("Vertical", 58),
    Sketcher.Constraint("Horizontal", 60),
    Sketcher.Constraint("Vertical", 62),
    Sketcher.Constraint("Horizontal", 64),
    Sketcher.Constraint("Vertical", 66),
    Sketcher.Constraint("Vertical", 72),
    Sketcher.Constraint("Horizontal", 76),
    Sketcher.Constraint("Vertical", 78),
    Sketcher.Constraint("Horizontal", 80),
    Sketcher.Constraint("Vertical", 82),
    Sketcher.Constraint("Horizontal", 84),
    Sketcher.Constraint("Vertical", 86),
    Sketcher.Constraint("Coincident", 88, 3, -1, 1),
    Sketcher.Constraint("Equal", 5, 7),
    Sketcher.Constraint("Equal", 3, 9),
    Sketcher.Constraint("Equal", 1, 11),
    Sketcher.Constraint("Equal", 11, 13),
    Sketcher.Constraint("Equal", 13, 15),
    Sketcher.Constraint("Equal", 15, 19),
    Sketcher.Constraint("Equal", 19, 21),
    Sketcher.Constraint("Equal", 21, 23),
    Sketcher.Constraint("Equal", 9, 25),
    Sketcher.Constraint("Equal", 27, 29),
    Sketcher.Constraint("Equal", 25, 31),
    Sketcher.Constraint("Equal", 23, 33),
    Sketcher.Constraint("Equal", 33, 35),
    Sketcher.Constraint("Equal", 35, 37),
    Sketcher.Constraint("Equal", 17, 39),
    Sketcher.Constraint("Equal", 37, 41),
    Sketcher.Constraint("Equal", 41, 43),
    Sketcher.Constraint("Equal", 43, 45),
    Sketcher.Constraint("Equal", 31, 47),
    Sketcher.Constraint("Equal", 7, 49),
    Sketcher.Constraint("Equal", 49, 51),
    Sketcher.Constraint("Equal", 47, 53),
    Sketcher.Constraint("Equal", 45, 55),
    Sketcher.Constraint("Equal", 55, 57),
    Sketcher.Constraint("Equal", 57, 59),
    Sketcher.Constraint("Equal", 39, 61),
    Sketcher.Constraint("Equal", 59, 63),
    Sketcher.Constraint("Equal", 63, 65),
    Sketcher.Constraint("Equal", 65, 67),
    Sketcher.Constraint("Equal", 53, 69),
    Sketcher.Constraint("Equal", 29, 71),
    Sketcher.Constraint("Equal", 71, 73),
    Sketcher.Constraint("Equal", 69, 75),
    Sketcher.Constraint("Equal", 67, 77),
    Sketcher.Constraint("Equal", 77, 79),
    Sketcher.Constraint("Equal", 79, 81),
    Sketcher.Constraint("Equal", 61, 83),
    Sketcher.Constraint("Equal", 81, 85),
    Sketcher.Constraint("Equal", 85, 87),
    Sketcher.Constraint("Symmetric", 1, 3, 45, 3, -1, 1),
    Sketcher.Constraint("Symmetric", 5, 3, 49, 3, -1, 1),
    Sketcher.Constraint("Symmetric", 9, 3, 53, 3, -1, 1),
    Sketcher.Constraint("Symmetric", 13, 3, 57, 3, -1, 1),
    Sketcher.Constraint("Symmetric", 17, 3, 61, 3, -1, 1),
    Sketcher.Constraint("Symmetric", 27, 3, 71, 3, -1, 1),
    Sketcher.Constraint("Symmetric", 31, 3, 75, 3, -1, 1),
    Sketcher.Constraint("Symmetric", 41, 3, 85, 3, -1, 1),
    Sketcher.Constraint("Symmetric", 3, 3, 9, 3, -2),
    Sketcher.Constraint("Symmetric", 43, 3, 57, 3, -2),
    Sketcher.Constraint("Symmetric", 39, 3, 61, 3, -2),
    Sketcher.Constraint("Symmetric", 23, 3, 77, 3, -2),
    Sketcher.Constraint("Symmetric", 48, 2, 51, 1, -2),
    Sketcher.Constraint("Symmetric", 29, 1, 70, 2, -2),
    Sketcher.Constraint("Symmetric", 26, 2, 73, 1, -2),
    Sketcher.Constraint("Symmetric", 21, 3, 35, 3, -1),
    Sketcher.Constraint("Perpendicular", 4, 8),
    Sketcher.Constraint("Parallel", 8, 26),
    Sketcher.Constraint("Perpendicular", 26, 30),
    Sketcher.Constraint("Horizontal", 78, 2, 81, 2),
    Sketcher.Constraint("Vertical", 64, 2, 79, 2),
    Sketcher.Constraint("Vertical", 63, 2, 80, 2),
    Sketcher.Constraint("Vertical", 62, 2, 81, 2),
    Sketcher.Constraint("Equal", 60, 18),
    Sketcher.Constraint("Diameter", 88, Q("6.8 mm")),
    Sketcher.Constraint("Angle", 68, Q("-2 deg")),
    Sketcher.Constraint("Radius", 1, Q("1.57 mm")),
    Sketcher.Constraint("Radius", 3, Q("0.76 mm")),
    Sketcher.Constraint("Radius", 17, Q("3.17 mm")),
    Sketcher.Constraint("Radius", 27, Q("4.75 mm")),
    Sketcher.Constraint("DistanceX", 16, 1, 16, 2, Q("11.2 mm")),
    Sketcher.Constraint("DistanceY", 15, 2, -1, 1, Q("20 mm")),
    Sketcher.Constraint("DistanceX", -1, 1, 17, 2, Q("20 mm")),
    Sketcher.Constraint("DistanceX", 64, 1, 64, 2, Q("1.18 mm")),
    Sketcher.Constraint("DistanceX", 0, 2, 0, 1, Q("3.085 mm")),
    Sketcher.Constraint("Radius", 5, Q("4.864551 mm")),
    Sketcher.Constraint("DistanceY", 22, 2, 22, 1, Q("3.085399 mm")),
    Sketcher.Constraint("DistanceX", -1, 1, 27, 3, Q("12.435 mm")),
    Sketcher.Constraint("DistanceY", 5, 1, -1, 1, Q("7.685 mm")),
    Sketcher.Constraint("DistanceY", -1, 1, 68, 2, Q("10.033001 mm")),
    Sketcher.Constraint("DistanceX", 6, 1, 6, 2, Q("5.554671 mm")),
    Sketcher.Constraint("DistanceX", 24, 2, 24, 1, Q("0.489942 mm")),
    Sketcher.Constraint("DistanceY", 2, 1, 2, 2, Q("0.462111 mm")),
    Sketcher.Constraint("DistanceY", 28, 1, 28, 2, Q("5.001569 mm")),
    Sketcher.Constraint("DistanceY", 62, 2, 62, 1, Q("11.257021 mm")),
    Sketcher.Constraint("DistanceY", 78, 1, 78, 2, Q("2.95748 mm")),
    Sketcher.Constraint("DistanceY", 82, 2, 82, 1, Q("11.260449 mm")),
    Sketcher.Constraint("DistanceX", 68, 2, -1, 1, Q("13.719899 mm")),
    Sketcher.Constraint("DistanceX", 75, 1, -1, 1, Q("13.816899 mm")),
    Sketcher.Constraint("DistanceX", 20, 2, 20, 1, Q("1.180004 mm")),
    Sketcher.Constraint("DistanceX", 84, 1, 84, 2, Q("11.044615 mm")),
    Sketcher.Constraint("DistanceX", -1, 1, 25, 3, Q("13.811732 mm")),
    Sketcher.Constraint("DistanceY", 79, 3, -1, 1, Q("5.690449 mm")),
])
sketch1.setExpression("Constraints[187]", "Params.sketch1_diameter")
sketch1.setExpression("Constraints[189]", "Params.sketch1_radius")
sketch1.setExpression("Constraints[190]", "Params.sketch1_radius2")
sketch1.setExpression("Constraints[191]", "Params.sketch1_radius3")
sketch1.setExpression("Constraints[192]", "Params.sketch1_radius4")
pad1 = body.newObject("PartDesign::Pad", "Pad")
pad1.Profile = sketch1
pad1.setExpression("Length", "Params.pad1_length")
pad1.Reversed = True

doc.recompute()
